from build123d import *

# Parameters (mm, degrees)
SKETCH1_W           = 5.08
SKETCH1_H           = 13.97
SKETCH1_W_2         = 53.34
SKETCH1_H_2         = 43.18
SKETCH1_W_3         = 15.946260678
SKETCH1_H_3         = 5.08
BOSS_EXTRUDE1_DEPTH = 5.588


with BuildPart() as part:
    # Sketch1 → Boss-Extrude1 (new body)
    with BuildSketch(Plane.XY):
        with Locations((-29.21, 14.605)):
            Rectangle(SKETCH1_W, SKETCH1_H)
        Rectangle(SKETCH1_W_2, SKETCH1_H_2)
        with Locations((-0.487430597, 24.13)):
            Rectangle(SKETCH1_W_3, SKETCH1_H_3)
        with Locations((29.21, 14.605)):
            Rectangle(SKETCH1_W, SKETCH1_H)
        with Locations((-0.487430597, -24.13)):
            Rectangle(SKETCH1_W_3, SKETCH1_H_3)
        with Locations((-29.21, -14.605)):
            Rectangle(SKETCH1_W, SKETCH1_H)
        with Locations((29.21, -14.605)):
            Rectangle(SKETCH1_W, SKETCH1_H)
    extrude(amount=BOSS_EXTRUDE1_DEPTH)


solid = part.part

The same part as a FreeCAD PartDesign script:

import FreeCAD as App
import Part
import Sketcher
Q = App.Units.Quantity

doc = App.newDocument("Part")
body = doc.addObject("PartDesign::Body", "Body")

sketch1 = doc.addObject("Sketcher::SketchObject", "Sketch")
body.addObject(sketch1)
sketch1.AttachmentSupport = (doc.XY_Plane, [""])
sketch1.MapMode = "FlatFace"
sketch1.addGeometry([
    Part.LineSegment(App.Vector(-31.75, 21.59, 0), App.Vector(-31.75, 7.62, 0)),
    Part.LineSegment(App.Vector(-31.75, 7.62, 0), App.Vector(-26.67, 7.62, 0)),
    Part.LineSegment(App.Vector(-26.67, 7.62, 0), App.Vector(-26.67, -7.62, 0)),
    Part.LineSegment(App.Vector(-26.67, -7.62, 0), App.Vector(-31.75, -7.62, 0)),
    Part.LineSegment(App.Vector(-31.75, -7.62, 0), App.Vector(-31.75, -21.59, 0)),
    Part.LineSegment(App.Vector(-31.75, -21.59, 0), App.Vector(-8.460561, -21.59, 0)),
    Part.LineSegment(App.Vector(-8.460561, -21.59, 0), App.Vector(-8.460561, -26.67, 0)),
    Part.LineSegment(App.Vector(-8.460561, -26.67, 0), App.Vector(7.4857, -26.67, 0)),
    Part.LineSegment(App.Vector(7.4857, -26.67, 0), App.Vector(7.4857, -21.59, 0)),
    Part.LineSegment(App.Vector(7.4857, -21.59, 0), App.Vector(31.75, -21.59, 0)),
    Part.LineSegment(App.Vector(31.75, -21.59, 0), App.Vector(31.75, -7.62, 0)),
    Part.LineSegment(App.Vector(31.75, -7.62, 0), App.Vector(26.67, -7.62, 0)),
    Part.LineSegment(App.Vector(26.67, -7.62, 0), App.Vector(26.67, 7.62, 0)),
    Part.LineSegment(App.Vector(26.67, 7.62, 0), App.Vector(31.75, 7.62, 0)),
    Part.LineSegment(App.Vector(31.75, 7.62, 0), App.Vector(31.75, 21.59, 0)),
    Part.LineSegment(App.Vector(31.75, 21.59, 0), App.Vector(7.4857, 21.59, 0)),
    Part.LineSegment(App.Vector(7.4857, 21.59, 0), App.Vector(7.4857, 26.67, 0)),
    Part.LineSegment(App.Vector(7.4857, 26.67, 0), App.Vector(-8.460561, 26.67, 0)),
    Part.LineSegment(App.Vector(-8.460561, 26.67, 0), App.Vector(-8.460561, 21.59, 0)),
    Part.LineSegment(App.Vector(-8.460561, 21.59, 0), App.Vector(-31.75, 21.59, 0)),
], False)
sketch1.addConstraint([
    Sketcher.Constraint("Coincident", 0, 2, 1, 1),
    Sketcher.Constraint("Coincident", 1, 2, 2, 1),
    Sketcher.Constraint("Coincident", 2, 2, 3, 1),
    Sketcher.Constraint("Coincident", 3, 2, 4, 1),
    Sketcher.Constraint("Coincident", 4, 2, 5, 1),
    Sketcher.Constraint("Coincident", 5, 2, 6, 1),
    Sketcher.Constraint("Coincident", 6, 2, 7, 1),
    Sketcher.Constraint("Coincident", 7, 2, 8, 1),
    Sketcher.Constraint("Coincident", 8, 2, 9, 1),
    Sketcher.Constraint("Coincident", 9, 2, 10, 1),
    Sketcher.Constraint("Coincident", 10, 2, 11, 1),
    Sketcher.Constraint("Coincident", 11, 2, 12, 1),
    Sketcher.Constraint("Coincident", 12, 2, 13, 1),
    Sketcher.Constraint("Coincident", 13, 2, 14, 1),
    Sketcher.Constraint("Coincident", 14, 2, 15, 1),
    Sketcher.Constraint("Coincident", 15, 2, 16, 1),
    Sketcher.Constraint("Coincident", 16, 2, 17, 1),
    Sketcher.Constraint("Coincident", 17, 2, 18, 1),
    Sketcher.Constraint("Coincident", 18, 2, 19, 1),
    Sketcher.Constraint("Coincident", 19, 2, 0, 1),
    Sketcher.Constraint("Vertical", 0),
    Sketcher.Constraint("Horizontal", 1),
    Sketcher.Constraint("Vertical", 2),
    Sketcher.Constraint("Horizontal", 3),
    Sketcher.Constraint("Vertical", 4),
    Sketcher.Constraint("Horizontal", 5),
    Sketcher.Constraint("Vertical", 6),
    Sketcher.Constraint("Horizontal", 7),
    Sketcher.Constraint("Vertical", 8),
    Sketcher.Constraint("Horizontal", 9),
    Sketcher.Constraint("Vertical", 10),
    Sketcher.Constraint("Horizontal", 11),
    Sketcher.Constraint("Vertical", 12),
    Sketcher.Constraint("Horizontal", 13),
    Sketcher.Constraint("Vertical", 14),
    Sketcher.Constraint("Horizontal", 15),
    Sketcher.Constraint("Vertical", 16),
    Sketcher.Constraint("Horizontal", 17),
    Sketcher.Constraint("Vertical", 18),
    Sketcher.Constraint("Horizontal", 19),
    Sketcher.Constraint("Symmetric", 0, 2, 10, 2, -1, 1),
    Sketcher.Constraint("Symmetric", 2, 2, 12, 2, -1, 1),
    Sketcher.Constraint("Symmetric", 4, 2, 14, 2, -1, 1),
    Sketcher.Constraint("Symmetric", 4, 2, 9, 2, -2),
    Sketcher.Constraint("Symmetric", 7, 2, 16, 2, -1),
    Sketcher.Constraint("Symmetric", 5, 2, 18, 2, -1),
    Sketcher.Constraint("Horizontal", 3, 2, 10, 2),
    Sketcher.Constraint("Equal", 13, 6),
    Sketcher.Constraint("DistanceX", 1, 1, 1, 2, Q("0.2 in")),
    Sketcher.Constraint("DistanceY", 2, 2, 2, 1, Q("0.6 in")),
    Sketcher.Constraint("DistanceY", 0, 2, 0, 1, Q("0.55 in")),
    Sketcher.Constraint("DistanceX", 2, 2, 9, 2, Q("2.3 in")),
    Sketcher.Constraint("DistanceX", 9, 1, 9, 2, Q("24.2643 mm")),
    Sketcher.Constraint("DistanceX", 5, 1, 5, 2, Q("23.289439 mm")),
])
pad1 = doc.addObject("PartDesign::Pad", "Pad")
body.addObject(pad1)
pad1.Profile = sketch1
pad1.Length = Q("0.22 in")

doc.recompute()
